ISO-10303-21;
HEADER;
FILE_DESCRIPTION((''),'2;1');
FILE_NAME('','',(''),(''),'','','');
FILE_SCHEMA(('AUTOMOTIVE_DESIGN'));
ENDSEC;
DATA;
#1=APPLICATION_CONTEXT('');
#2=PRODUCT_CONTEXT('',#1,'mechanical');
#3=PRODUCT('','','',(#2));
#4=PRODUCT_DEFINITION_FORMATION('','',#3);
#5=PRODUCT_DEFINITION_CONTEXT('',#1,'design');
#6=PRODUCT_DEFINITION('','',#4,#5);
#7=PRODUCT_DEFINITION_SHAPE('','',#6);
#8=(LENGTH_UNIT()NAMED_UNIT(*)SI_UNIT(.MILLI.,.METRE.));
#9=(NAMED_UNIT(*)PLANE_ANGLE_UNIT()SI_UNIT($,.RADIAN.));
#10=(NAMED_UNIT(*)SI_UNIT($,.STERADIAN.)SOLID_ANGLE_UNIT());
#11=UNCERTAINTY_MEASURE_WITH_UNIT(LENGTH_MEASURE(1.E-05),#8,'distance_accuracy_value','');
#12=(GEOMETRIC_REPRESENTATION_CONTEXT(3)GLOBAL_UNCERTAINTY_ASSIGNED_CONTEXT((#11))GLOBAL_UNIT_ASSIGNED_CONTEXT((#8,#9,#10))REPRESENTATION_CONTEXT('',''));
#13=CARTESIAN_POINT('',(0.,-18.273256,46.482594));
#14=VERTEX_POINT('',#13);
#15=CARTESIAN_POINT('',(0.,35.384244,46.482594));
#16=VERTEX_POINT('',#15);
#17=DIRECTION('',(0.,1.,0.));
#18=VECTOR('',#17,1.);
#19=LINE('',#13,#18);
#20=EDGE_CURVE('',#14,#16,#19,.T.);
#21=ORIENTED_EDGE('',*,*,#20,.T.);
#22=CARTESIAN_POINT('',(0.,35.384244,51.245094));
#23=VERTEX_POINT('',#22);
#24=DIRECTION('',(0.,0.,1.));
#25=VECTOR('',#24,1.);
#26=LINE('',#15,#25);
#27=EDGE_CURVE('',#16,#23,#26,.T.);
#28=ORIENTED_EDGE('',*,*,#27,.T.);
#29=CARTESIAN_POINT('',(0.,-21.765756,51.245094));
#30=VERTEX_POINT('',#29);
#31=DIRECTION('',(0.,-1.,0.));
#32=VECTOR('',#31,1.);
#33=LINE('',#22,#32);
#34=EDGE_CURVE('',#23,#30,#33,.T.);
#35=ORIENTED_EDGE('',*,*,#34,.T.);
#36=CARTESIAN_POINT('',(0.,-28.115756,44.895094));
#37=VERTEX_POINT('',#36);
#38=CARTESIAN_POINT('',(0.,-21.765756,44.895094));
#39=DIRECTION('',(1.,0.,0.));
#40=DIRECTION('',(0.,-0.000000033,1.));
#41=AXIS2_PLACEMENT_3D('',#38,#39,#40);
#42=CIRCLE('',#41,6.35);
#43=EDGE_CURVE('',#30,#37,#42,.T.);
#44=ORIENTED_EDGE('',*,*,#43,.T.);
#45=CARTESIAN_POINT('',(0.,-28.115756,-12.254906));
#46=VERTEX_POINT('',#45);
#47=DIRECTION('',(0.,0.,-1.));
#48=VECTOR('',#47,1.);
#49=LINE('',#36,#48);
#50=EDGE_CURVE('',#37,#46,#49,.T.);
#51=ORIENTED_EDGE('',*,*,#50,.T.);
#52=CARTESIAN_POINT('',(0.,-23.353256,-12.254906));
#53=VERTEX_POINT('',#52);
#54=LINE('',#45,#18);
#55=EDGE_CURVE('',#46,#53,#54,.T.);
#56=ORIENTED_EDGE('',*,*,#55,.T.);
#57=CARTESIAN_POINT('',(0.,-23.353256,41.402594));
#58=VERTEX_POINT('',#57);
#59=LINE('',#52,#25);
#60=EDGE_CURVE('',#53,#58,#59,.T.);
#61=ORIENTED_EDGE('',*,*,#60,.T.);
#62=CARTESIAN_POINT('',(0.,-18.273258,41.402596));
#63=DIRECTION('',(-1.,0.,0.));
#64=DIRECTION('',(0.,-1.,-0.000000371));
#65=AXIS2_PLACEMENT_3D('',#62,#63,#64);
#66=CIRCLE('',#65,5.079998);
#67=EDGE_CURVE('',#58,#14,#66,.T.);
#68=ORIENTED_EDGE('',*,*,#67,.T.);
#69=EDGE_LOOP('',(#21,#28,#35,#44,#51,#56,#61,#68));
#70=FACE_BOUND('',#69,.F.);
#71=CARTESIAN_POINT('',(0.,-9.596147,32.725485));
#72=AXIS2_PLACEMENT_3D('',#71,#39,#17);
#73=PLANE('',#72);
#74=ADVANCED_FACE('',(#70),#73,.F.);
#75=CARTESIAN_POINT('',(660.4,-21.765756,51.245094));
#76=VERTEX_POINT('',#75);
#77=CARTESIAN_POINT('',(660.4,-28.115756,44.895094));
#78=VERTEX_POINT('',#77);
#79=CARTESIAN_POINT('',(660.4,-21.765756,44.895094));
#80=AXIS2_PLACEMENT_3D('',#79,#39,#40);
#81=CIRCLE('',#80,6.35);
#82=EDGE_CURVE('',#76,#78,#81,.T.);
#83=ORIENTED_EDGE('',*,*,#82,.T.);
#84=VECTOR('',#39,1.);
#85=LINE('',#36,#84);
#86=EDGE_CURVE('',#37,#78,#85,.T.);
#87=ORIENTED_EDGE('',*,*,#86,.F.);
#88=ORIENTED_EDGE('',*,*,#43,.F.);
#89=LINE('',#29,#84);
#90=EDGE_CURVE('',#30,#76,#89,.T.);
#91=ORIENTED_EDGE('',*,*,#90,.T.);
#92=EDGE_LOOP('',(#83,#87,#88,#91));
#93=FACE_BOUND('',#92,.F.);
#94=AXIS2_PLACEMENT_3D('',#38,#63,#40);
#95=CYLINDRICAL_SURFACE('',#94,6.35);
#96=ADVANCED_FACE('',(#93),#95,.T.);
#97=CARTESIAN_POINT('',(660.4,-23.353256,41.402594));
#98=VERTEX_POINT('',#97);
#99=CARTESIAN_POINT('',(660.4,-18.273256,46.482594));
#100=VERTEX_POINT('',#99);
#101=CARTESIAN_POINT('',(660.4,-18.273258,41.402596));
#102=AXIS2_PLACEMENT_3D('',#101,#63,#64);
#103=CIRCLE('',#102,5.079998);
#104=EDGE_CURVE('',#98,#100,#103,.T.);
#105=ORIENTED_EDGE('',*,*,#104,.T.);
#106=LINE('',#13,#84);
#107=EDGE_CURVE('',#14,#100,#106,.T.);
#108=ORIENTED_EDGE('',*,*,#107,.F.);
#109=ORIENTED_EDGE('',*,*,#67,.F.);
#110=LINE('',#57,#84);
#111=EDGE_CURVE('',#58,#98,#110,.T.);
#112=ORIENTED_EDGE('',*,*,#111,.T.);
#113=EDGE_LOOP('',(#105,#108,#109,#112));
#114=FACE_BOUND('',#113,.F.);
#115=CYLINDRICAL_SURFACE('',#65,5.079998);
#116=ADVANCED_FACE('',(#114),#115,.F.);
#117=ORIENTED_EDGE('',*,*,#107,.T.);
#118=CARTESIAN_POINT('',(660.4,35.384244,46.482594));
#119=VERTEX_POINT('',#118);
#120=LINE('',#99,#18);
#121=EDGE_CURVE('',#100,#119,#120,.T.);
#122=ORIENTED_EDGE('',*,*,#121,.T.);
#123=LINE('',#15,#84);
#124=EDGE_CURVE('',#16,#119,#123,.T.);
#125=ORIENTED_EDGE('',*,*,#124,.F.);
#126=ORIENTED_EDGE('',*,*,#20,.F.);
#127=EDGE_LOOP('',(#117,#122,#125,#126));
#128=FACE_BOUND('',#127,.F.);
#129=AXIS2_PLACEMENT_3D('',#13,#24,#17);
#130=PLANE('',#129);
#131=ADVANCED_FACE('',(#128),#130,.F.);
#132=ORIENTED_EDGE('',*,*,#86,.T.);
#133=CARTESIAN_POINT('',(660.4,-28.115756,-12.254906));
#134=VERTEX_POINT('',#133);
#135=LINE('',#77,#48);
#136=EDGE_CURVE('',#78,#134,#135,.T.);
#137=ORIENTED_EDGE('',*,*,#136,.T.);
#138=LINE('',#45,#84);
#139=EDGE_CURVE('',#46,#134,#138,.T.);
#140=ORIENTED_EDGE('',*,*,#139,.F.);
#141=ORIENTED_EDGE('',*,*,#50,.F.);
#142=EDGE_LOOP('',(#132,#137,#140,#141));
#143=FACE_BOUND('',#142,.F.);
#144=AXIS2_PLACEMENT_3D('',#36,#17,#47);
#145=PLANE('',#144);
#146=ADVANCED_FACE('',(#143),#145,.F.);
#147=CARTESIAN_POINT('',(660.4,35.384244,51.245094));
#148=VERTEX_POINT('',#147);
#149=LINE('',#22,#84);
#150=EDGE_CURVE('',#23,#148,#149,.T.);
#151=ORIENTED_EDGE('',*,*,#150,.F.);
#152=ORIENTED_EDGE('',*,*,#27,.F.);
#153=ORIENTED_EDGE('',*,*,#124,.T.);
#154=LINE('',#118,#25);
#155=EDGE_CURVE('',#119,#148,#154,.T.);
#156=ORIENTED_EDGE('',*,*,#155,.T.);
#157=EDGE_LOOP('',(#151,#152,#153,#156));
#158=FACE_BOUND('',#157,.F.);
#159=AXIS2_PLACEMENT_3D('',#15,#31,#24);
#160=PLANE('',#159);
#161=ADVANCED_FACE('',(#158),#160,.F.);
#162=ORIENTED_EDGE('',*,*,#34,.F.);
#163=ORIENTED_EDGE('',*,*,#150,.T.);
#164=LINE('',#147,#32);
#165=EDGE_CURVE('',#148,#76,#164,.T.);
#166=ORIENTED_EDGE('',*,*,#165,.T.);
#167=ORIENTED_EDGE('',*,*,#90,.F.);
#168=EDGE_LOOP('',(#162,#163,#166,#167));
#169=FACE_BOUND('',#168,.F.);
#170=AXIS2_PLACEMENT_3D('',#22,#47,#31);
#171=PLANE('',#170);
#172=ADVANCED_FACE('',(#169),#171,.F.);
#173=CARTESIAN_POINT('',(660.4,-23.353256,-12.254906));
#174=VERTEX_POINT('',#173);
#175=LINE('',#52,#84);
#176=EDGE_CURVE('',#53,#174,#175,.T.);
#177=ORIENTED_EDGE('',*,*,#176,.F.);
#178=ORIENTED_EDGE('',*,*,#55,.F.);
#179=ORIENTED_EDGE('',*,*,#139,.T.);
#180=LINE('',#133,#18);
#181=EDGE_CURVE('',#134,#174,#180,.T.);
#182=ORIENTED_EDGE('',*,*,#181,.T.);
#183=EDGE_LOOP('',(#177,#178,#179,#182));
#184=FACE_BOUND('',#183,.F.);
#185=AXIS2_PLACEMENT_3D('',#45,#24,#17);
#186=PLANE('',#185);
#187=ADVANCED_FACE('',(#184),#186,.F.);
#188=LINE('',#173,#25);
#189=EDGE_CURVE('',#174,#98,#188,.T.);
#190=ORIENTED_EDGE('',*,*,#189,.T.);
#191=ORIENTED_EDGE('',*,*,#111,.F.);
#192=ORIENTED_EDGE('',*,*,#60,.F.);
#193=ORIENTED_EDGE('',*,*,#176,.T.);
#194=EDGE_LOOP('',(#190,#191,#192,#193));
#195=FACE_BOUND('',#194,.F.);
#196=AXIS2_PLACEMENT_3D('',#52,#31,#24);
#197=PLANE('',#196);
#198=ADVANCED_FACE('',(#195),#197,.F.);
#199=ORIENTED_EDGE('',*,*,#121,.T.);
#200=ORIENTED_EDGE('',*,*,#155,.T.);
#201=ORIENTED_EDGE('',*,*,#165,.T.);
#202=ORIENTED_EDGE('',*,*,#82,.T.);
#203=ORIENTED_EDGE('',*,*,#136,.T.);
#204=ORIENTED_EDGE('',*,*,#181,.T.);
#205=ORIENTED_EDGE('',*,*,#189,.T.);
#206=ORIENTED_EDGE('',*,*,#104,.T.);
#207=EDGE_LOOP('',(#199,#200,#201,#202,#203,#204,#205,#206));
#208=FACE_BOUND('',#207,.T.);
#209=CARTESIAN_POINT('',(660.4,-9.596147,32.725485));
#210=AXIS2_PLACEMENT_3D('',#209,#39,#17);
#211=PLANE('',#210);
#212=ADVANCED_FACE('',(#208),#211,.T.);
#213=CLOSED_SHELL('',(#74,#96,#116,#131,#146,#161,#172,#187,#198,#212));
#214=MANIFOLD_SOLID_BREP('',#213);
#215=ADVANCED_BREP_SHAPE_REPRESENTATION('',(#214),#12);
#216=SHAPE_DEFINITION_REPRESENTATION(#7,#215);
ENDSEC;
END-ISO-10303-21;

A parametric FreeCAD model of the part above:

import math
import FreeCAD as App
import Part
import Sketcher
from FreeCAD import Vector
Q = App.Units.Quantity

doc = App.newDocument("Part")
body = doc.addObject("PartDesign::Body", "Body")

# Sketch on YZ plane
sketch1 = body.newObject("Sketcher::SketchObject", "Sketch")
sketch1.AttachmentSupport = (doc.getObject("YZ_Plane"), [""])
sketch1.MapMode = "FlatFace"
sketch1.addGeometry(Part.LineSegment(Vector(-28.115756, 44.895094, 0), Vector(-28.115756, -12.254906, 0)), False)
sketch1.addGeometry(Part.LineSegment(Vector(-28.115756, -12.254906, 0), Vector(-23.353256, -12.254906, 0)), False)
sketch1.addGeometry(Part.LineSegment(Vector(-23.353256, -12.254906, 0), Vector(-23.353256, 41.402594, 0)), False)
sketch1.addGeometry(Part.ArcOfCircle(Part.Circle(Vector(-18.273258, 41.402596, 0), Vector(0, 0, 1), 5.079998), math.radians(89.999979), math.radians(180.000021)), False)
sketch1.addGeometry(Part.LineSegment(Vector(-18.273256, 46.482594, 0), Vector(35.384244, 46.482594, 0)), False)
sketch1.addGeometry(Part.LineSegment(Vector(35.384244, 46.482594, 0), Vector(35.384244, 51.245094, 0)), False)
sketch1.addGeometry(Part.LineSegment(Vector(35.384244, 51.245094, 0), Vector(-21.765756, 51.245094, 0)), False)
sketch1.addGeometry(Part.ArcOfCircle(Part.Circle(Vector(-21.765756, 44.895094, 0), Vector(0, 0, 1), 6.35), math.radians(90.000002), math.radians(179.999998)), False)
sketch1.addConstraint(Sketcher.Constraint("Coincident", 0, 2, 1, 1))
sketch1.addConstraint(Sketcher.Constraint("Coincident", 1, 2, 2, 1))
sketch1.addConstraint(Sketcher.Constraint("Tangent", 2, 2, 3, 2))
sketch1.addConstraint(Sketcher.Constraint("Tangent", 3, 1, 4, 1))
sketch1.addConstraint(Sketcher.Constraint("Coincident", 4, 2, 5, 1))
sketch1.addConstraint(Sketcher.Constraint("Coincident", 5, 2, 6, 1))
sketch1.addConstraint(Sketcher.Constraint("Tangent", 6, 2, 7, 1))
sketch1.addConstraint(Sketcher.Constraint("Tangent", 7, 2, 0, 1))
sketch1.addConstraint(Sketcher.Constraint("Vertical", 0))
sketch1.addConstraint(Sketcher.Constraint("Horizontal", 1))
sketch1.addConstraint(Sketcher.Constraint("Vertical", 2))
sketch1.addConstraint(Sketcher.Constraint("Horizontal", 4))
sketch1.addConstraint(Sketcher.Constraint("Vertical", 5))
sketch1.addConstraint(Sketcher.Constraint("Horizontal", 6))
sketch1.addConstraint(Sketcher.Constraint("Equal", 6, 0))
sketch1.addConstraint(Sketcher.Constraint("Equal", 4, 2))
sketch1.addConstraint(Sketcher.Constraint("Radius", 3, Q("0.1999999 in")))
sketch1.addConstraint(Sketcher.Constraint("Radius", 7, Q("0.25 in")))
sketch1.addConstraint(Sketcher.Constraint("DistanceX", 6, 2, 6, 1, Q("2.25 in")))
sketch1.addConstraint(Sketcher.Constraint("DistanceX", 1, 1, 1, 2, Q("0.1875 in")))
sketch1.addConstraint(Sketcher.Constraint("DistanceX", 3, 3, -1, 1, Q("18.273258 mm")))
sketch1.addConstraint(Sketcher.Constraint("DistanceY", -1, 1, 3, 3, Q("41.402596 mm")))
pad1 = body.newObject("PartDesign::Pad", "Pad")
pad1.Profile = sketch1
pad1.Length = Q("26 in")

doc.recompute()
